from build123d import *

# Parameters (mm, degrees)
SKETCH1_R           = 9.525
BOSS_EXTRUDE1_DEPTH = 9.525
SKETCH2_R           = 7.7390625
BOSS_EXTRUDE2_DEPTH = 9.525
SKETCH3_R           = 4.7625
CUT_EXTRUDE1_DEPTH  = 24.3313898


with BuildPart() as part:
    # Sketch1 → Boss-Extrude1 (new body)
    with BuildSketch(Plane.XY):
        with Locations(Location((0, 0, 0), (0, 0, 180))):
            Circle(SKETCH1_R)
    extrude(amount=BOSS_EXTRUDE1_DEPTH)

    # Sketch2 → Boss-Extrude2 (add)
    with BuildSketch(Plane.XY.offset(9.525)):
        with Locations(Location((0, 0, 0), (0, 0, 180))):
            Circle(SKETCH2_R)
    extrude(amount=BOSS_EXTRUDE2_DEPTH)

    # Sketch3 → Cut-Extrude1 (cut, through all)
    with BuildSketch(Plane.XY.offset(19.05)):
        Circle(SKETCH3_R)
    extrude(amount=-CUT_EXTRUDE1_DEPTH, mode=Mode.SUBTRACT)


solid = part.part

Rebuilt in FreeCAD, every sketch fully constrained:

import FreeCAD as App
import Part
import Sketcher
from FreeCAD import Vector
Q = App.Units.Quantity

doc = App.newDocument("Part")
body = doc.addObject("PartDesign::Body", "Body")

sketch1 = body.newObject("Sketcher::SketchObject", "Sketch")
sketch1.AttachmentSupport = (doc.getObject("XY_Plane"), [""])
sketch1.MapMode = "FlatFace"
sketch1.addGeometry(Part.Circle(Vector(0, 0, 0), Vector(0, 0, 1), 10), False)
sketch1.addConstraint([
    Sketcher.Constraint("Coincident", 0, 3, -1, 1),
    Sketcher.Constraint("Diameter", 0, Q("0.75 in")),
])
pad1 = body.newObject("PartDesign::Pad", "Pad")
pad1.Profile = sketch1
pad1.Length = Q("0.375 in")

sketch2 = body.newObject("Sketcher::SketchObject", "Sketch001")
sketch2.AttachmentSupport = (doc.getObject("XY_Plane"), [""])
sketch2.MapMode = "FlatFace"
sketch2.AttachmentOffset = App.Placement(Vector(0, 0, 0.375 * 25.4), App.Rotation())
sketch2.addGeometry(Part.Circle(Vector(0, 0, 0), Vector(0, 0, 1), 8), False)
sketch2.addConstraint([
    Sketcher.Constraint("Coincident", 0, 3, -1, 1),
    Sketcher.Constraint("Diameter", 0, Q("0.609375 in")),
])
pad2 = body.newObject("PartDesign::Pad", "Pad001")
pad2.Profile = sketch2
pad2.Length = Q("0.375 in")

sketch3 = body.newObject("Sketcher::SketchObject", "Sketch002")
sketch3.AttachmentSupport = (doc.getObject("XY_Plane"), [""])
sketch3.MapMode = "FlatFace"
sketch3.AttachmentOffset = App.Placement(Vector(0, 0, 0.75 * 25.4), App.Rotation())
sketch3.addGeometry(Part.Circle(Vector(0, 0, 0), Vector(0, 0, 1), 4.8), False)
sketch3.addConstraint([
    Sketcher.Constraint("Coincident", 0, 3, -1, 1),
    Sketcher.Constraint("Diameter", 0, Q("0.375 in")),
])
pocket1 = body.newObject("PartDesign::Pocket", "Pocket")
pocket1.Profile = sketch3
pocket1.Type = "ThroughAll"

doc.recompute()
